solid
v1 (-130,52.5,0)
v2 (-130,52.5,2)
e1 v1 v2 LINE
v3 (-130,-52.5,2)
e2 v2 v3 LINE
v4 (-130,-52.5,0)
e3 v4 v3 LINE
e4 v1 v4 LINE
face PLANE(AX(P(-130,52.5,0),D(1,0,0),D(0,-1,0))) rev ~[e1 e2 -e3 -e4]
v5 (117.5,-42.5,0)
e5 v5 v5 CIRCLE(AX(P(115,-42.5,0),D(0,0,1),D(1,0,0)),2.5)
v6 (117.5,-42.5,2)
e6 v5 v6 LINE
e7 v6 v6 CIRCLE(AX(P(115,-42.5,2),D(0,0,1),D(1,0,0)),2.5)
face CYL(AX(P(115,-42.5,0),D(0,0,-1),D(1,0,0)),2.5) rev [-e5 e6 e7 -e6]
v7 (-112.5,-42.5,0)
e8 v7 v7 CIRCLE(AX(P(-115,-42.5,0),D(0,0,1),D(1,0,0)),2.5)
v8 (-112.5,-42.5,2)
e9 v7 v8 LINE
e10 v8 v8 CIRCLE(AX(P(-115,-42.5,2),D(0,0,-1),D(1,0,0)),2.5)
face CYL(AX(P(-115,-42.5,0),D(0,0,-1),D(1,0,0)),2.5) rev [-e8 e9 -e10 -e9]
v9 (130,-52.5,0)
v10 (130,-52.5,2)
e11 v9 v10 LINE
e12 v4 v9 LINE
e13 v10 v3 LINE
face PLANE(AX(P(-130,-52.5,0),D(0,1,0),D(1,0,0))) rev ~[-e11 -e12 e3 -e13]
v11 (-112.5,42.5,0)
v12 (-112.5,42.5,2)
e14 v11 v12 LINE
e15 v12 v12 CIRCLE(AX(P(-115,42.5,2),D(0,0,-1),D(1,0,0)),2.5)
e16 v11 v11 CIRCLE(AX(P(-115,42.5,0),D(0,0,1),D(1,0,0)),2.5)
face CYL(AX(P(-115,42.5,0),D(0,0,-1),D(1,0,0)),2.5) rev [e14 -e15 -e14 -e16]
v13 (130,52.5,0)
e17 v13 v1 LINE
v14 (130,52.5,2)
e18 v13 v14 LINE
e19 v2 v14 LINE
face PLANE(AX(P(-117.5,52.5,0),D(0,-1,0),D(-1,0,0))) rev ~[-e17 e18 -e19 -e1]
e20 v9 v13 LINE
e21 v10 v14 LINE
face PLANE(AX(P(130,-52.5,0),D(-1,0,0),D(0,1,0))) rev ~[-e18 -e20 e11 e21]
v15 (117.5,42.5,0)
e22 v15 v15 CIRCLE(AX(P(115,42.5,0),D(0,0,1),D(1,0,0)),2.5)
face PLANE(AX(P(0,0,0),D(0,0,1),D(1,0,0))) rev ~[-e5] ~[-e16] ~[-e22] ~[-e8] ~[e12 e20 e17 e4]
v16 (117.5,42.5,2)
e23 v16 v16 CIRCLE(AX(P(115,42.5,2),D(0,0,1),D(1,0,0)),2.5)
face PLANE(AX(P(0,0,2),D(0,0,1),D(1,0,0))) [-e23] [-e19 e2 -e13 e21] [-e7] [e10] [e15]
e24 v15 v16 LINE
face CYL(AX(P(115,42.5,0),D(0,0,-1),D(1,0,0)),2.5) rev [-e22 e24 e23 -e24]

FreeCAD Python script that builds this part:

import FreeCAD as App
import Part
import Sketcher
from FreeCAD import Vector
Q = App.Units.Quantity


def add_polygon(sketch, points):
    """Adds a closed chain of lines whose ends are joined by coincident constraints."""
    first, n = sketch.GeometryCount, len(points)
    for a, b in zip(points, points[1:] + points[:1]):
        sketch.addGeometry(Part.LineSegment(App.Vector(*a, 0), App.Vector(*b, 0)), False)
    for i in range(n):
        sketch.addConstraint(Sketcher.Constraint("Coincident", first + i, 2, first + (i + 1) % n, 1))

doc = App.newDocument("Part")
body = doc.addObject("PartDesign::Body", "Body")

sketch1 = body.newObject("Sketcher::SketchObject", "Sketch")
sketch1.AttachmentSupport = (doc.getObject("XY_Plane"), [""])
sketch1.MapMode = "FlatFace"
add_polygon(sketch1, [(-130, 52.5), (-130, -52.5), (130, -52.5), (130, 52.5)])
sketch1.addGeometry(Part.Circle(Vector(-115, 42.5, 0), Vector(0, 0, 1), 2.5), False)
sketch1.addGeometry(Part.Circle(Vector(115, 42.5, 0), Vector(0, 0, 1), 2.5), False)
sketch1.addGeometry(Part.Circle(Vector(-115, -42.5, 0), Vector(0, 0, 1), 2.5), False)
sketch1.addGeometry(Part.Circle(Vector(115, -42.5, 0), Vector(0, 0, 1), 2.5), False)
sketch1.addConstraint([
    Sketcher.Constraint("Vertical", 0),
    Sketcher.Constraint("Horizontal", 1),
    Sketcher.Constraint("Vertical", 2),
    Sketcher.Constraint("Horizontal", 3),
    Sketcher.Constraint("Equal", 4, 5),
    Sketcher.Constraint("Equal", 5, 6),
    Sketcher.Constraint("Equal", 6, 7),
    Sketcher.Constraint("Symmetric", 5, 3, 6, 3, -1, 1),
    Sketcher.Constraint("Symmetric", 4, 3, 7, 3, -1, 1),
    Sketcher.Constraint("Symmetric", 0, 2, 2, 2, -1, 1),
    Sketcher.Constraint("Symmetric", 4, 3, 5, 3, -2),
    Sketcher.Constraint("Diameter", 4, Q("5 mm")),
    Sketcher.Constraint("DistanceX", 1, 1, 1, 2, Q("260 mm")),
    Sketcher.Constraint("DistanceY", 0, 2, 0, 1, Q("105 mm")),
    Sketcher.Constraint("DistanceY", 0, 2, 6, 3, Q("10 mm")),
    Sketcher.Constraint("DistanceX", 4, 3, -1, 1, Q("115 mm")),
])
pad1 = body.newObject("PartDesign::Pad", "Pad")
pad1.Profile = sketch1
pad1.Length = 2

doc.recompute()
